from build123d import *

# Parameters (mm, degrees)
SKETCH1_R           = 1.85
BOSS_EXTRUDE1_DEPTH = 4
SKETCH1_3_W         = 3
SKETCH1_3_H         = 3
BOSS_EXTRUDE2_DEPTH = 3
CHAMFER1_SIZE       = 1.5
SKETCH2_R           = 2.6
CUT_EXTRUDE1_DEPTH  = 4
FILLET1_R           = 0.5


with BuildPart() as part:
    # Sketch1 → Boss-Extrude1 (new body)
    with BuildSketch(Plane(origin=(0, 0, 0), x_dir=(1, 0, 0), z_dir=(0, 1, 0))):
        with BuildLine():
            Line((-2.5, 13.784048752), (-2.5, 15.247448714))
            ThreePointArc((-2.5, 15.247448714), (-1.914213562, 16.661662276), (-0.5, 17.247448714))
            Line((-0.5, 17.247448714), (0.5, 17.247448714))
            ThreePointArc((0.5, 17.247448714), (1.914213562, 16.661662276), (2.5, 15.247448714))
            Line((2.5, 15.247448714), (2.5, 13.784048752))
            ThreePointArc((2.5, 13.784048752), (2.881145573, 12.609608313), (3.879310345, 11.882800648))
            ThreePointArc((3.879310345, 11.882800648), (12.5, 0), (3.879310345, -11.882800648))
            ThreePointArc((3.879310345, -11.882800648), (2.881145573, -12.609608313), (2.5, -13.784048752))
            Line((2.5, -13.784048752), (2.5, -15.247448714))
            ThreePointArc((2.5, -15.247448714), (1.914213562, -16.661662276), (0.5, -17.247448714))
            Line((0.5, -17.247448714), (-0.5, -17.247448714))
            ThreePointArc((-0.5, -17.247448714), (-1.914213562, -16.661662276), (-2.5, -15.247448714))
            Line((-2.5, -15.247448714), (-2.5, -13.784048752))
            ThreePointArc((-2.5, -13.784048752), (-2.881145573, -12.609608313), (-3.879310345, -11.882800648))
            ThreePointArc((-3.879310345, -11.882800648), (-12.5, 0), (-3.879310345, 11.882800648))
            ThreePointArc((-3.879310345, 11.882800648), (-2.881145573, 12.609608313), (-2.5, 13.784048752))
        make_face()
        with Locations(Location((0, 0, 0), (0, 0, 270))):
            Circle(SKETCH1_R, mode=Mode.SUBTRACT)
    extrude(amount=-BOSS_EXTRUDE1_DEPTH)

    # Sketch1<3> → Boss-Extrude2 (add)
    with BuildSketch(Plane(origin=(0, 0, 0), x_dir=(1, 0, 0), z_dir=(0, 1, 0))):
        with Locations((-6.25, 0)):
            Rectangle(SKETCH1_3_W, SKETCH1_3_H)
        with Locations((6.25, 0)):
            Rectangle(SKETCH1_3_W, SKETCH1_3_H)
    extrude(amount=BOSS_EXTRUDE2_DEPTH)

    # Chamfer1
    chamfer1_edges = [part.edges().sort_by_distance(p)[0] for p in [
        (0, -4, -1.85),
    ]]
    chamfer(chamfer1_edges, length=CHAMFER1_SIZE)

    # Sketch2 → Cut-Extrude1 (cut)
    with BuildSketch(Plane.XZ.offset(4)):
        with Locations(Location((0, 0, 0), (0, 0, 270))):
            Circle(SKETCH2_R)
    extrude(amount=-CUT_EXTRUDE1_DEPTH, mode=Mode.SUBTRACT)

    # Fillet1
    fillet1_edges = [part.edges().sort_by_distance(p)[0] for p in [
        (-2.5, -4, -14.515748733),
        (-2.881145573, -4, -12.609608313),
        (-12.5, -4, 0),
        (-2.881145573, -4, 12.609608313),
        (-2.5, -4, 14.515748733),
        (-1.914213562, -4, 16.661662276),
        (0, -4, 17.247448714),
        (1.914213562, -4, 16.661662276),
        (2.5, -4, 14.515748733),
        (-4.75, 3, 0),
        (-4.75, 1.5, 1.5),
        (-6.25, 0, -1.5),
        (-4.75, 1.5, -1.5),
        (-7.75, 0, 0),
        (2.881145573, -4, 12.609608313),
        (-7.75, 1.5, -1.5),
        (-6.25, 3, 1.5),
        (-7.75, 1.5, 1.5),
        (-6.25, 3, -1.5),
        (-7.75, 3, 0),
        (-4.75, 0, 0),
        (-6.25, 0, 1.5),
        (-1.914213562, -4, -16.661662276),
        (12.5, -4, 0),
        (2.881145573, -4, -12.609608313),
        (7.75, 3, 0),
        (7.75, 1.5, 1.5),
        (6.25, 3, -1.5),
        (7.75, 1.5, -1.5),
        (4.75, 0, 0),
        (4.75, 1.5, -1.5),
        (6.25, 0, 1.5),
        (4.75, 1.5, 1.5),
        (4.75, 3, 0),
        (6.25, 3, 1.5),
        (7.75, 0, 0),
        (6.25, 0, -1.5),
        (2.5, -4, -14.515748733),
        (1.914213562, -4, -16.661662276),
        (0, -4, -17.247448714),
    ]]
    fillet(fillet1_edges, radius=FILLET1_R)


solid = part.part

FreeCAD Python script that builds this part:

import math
import FreeCAD as App
import Part
import Sketcher
Q = App.Units.Quantity


def edges_at(feature, points):
    """Names of the edges that pass closest to the given points."""
    edges = feature.Shape.Edges
    near = lambda p: min(range(len(edges)), key=lambda i: edges[i].distToShape(Part.Vertex(*p))[0])
    return sorted({f"Edge{near(p) + 1}" for p in points})


def add_polygon(sketch, points):
    """Adds a closed chain of lines whose ends are joined by coincident constraints."""
    first, n = sketch.GeometryCount, len(points)
    for a, b in zip(points, points[1:] + points[:1]):
        sketch.addGeometry(Part.LineSegment(App.Vector(*a, 0), App.Vector(*b, 0)), False)
    for i in range(n):
        sketch.addConstraint(Sketcher.Constraint("Coincident", first + i, 2, first + (i + 1) % n, 1))

doc = App.newDocument("Part")
body = doc.addObject("PartDesign::Body", "Body")

sketch1 = body.newObject("Sketcher::SketchObject", "Sketch")
sketch1.AttachmentSupport = (doc.getObject("XZ_Plane"), [""])
sketch1.MapMode = "FlatFace"
sketch1.addGeometry([
    Part.LineSegment(App.Vector(-2.5, -15.2, 0), App.Vector(-2.5, -13.8, 0)),
    Part.ArcOfCircle(Part.Circle(App.Vector(-4.5, -13.8, 0), App.Vector(0, 0, 1), 2), math.radians(0), math.radians(72)),
    Part.ArcOfCircle(Part.Circle(App.Vector(0, 0, 0), App.Vector(0, 0, 1), 12.5), math.radians(108), math.radians(252)),
    Part.ArcOfCircle(Part.Circle(App.Vector(-4.5, 13.8, 0), App.Vector(0, 0, 1), 2), math.radians(-72), math.radians(0)),
    Part.LineSegment(App.Vector(-2.5, 13.8, 0), App.Vector(-2.5, 15.2, 0)),
    Part.ArcOfCircle(Part.Circle(App.Vector(-0.5, 15.2, 0), App.Vector(0, 0, 1), 2), math.radians(90), math.radians(180)),
    Part.LineSegment(App.Vector(-0.5, 17.2, 0), App.Vector(0.5, 17.2, 0)),
    Part.ArcOfCircle(Part.Circle(App.Vector(0.5, 15.2, 0), App.Vector(0, 0, 1), 2), math.radians(0), math.radians(90)),
    Part.LineSegment(App.Vector(2.5, 15.2, 0), App.Vector(2.5, 13.8, 0)),
    Part.ArcOfCircle(Part.Circle(App.Vector(4.5, 13.8, 0), App.Vector(0, 0, 1), 2), math.radians(180), math.radians(252)),
    Part.ArcOfCircle(Part.Circle(App.Vector(0, 0, 0), App.Vector(0, 0, 1), 12.5), math.radians(-72), math.radians(72)),
    Part.ArcOfCircle(Part.Circle(App.Vector(4.5, -13.8, 0), App.Vector(0, 0, 1), 2), math.radians(108), math.radians(180)),
    Part.LineSegment(App.Vector(2.5, -13.8, 0), App.Vector(2.5, -15.2, 0)),
    Part.ArcOfCircle(Part.Circle(App.Vector(0.5, -15.2, 0), App.Vector(0, 0, 1), 2), math.radians(-90), math.radians(0)),
    Part.LineSegment(App.Vector(0.5, -17.2, 0), App.Vector(-0.5, -17.2, 0)),
    Part.ArcOfCircle(Part.Circle(App.Vector(-0.5, -15.2, 0), App.Vector(0, 0, 1), 2), math.radians(-180), math.radians(-90)),
    Part.Circle(App.Vector(0, 0, 0), App.Vector(0, 0, 1), 1.9),
], False)
sketch1.addConstraint([
    Sketcher.Constraint("Tangent", 0, 2, 1, 1),
    Sketcher.Constraint("Tangent", 1, 2, 2, 2),
    Sketcher.Constraint("Tangent", 2, 1, 3, 1),
    Sketcher.Constraint("Tangent", 3, 2, 4, 1),
    Sketcher.Constraint("Tangent", 4, 2, 5, 2),
    Sketcher.Constraint("Tangent", 5, 1, 6, 1),
    Sketcher.Constraint("Tangent", 6, 2, 7, 2),
    Sketcher.Constraint("Tangent", 7, 1, 8, 1),
    Sketcher.Constraint("Tangent", 8, 2, 9, 1),
    Sketcher.Constraint("Tangent", 9, 2, 10, 2),
    Sketcher.Constraint("Tangent", 10, 1, 11, 1),
    Sketcher.Constraint("Tangent", 11, 2, 12, 1),
    Sketcher.Constraint("Tangent", 12, 2, 13, 2),
    Sketcher.Constraint("Tangent", 13, 1, 14, 1),
    Sketcher.Constraint("Tangent", 14, 2, 15, 2),
    Sketcher.Constraint("Tangent", 15, 1, 0, 1),
    Sketcher.Constraint("Vertical", 0),
    Sketcher.Constraint("Vertical", 4),
    Sketcher.Constraint("Horizontal", 6),
    Sketcher.Constraint("Vertical", 8),
    Sketcher.Constraint("Vertical", 12),
    Sketcher.Constraint("Horizontal", 14),
    Sketcher.Constraint("Coincident", 2, 3, -1, 1),
    Sketcher.Constraint("Coincident", 10, 3, -1, 1),
    Sketcher.Constraint("Coincident", 16, 3, -1, 1),
    Sketcher.Constraint("Equal", 1, 3),
    Sketcher.Constraint("Equal", 3, 5),
    Sketcher.Constraint("Equal", 5, 7),
    Sketcher.Constraint("Equal", 7, 9),
    Sketcher.Constraint("Equal", 2, 10),
    Sketcher.Constraint("Equal", 9, 11),
    Sketcher.Constraint("Equal", 11, 13),
    Sketcher.Constraint("Equal", 13, 15),
    Sketcher.Constraint("Symmetric", 5, 3, 13, 3, -1, 1),
    Sketcher.Constraint("Horizontal", 3, 3, 9, 3),
    Sketcher.Constraint("Horizontal", 1, 3, 11, 3),
    Sketcher.Constraint("Radius", 1, Q("2 mm")),
    Sketcher.Constraint("Diameter", 16, Q("3.7 mm")),
    Sketcher.Constraint("Radius", 2, Q("12.5 mm")),
    Sketcher.Constraint("DistanceX", 6, 1, 6, 2, Q("1 mm")),
    Sketcher.Constraint("DistanceY", 0, 1, 0, 2, Q("1.4634 mm")),
])
pad1 = body.newObject("PartDesign::Pad", "Pad")
pad1.Profile = sketch1
pad1.Length = 4

sketch2 = body.newObject("Sketcher::SketchObject", "Sketch001")
sketch2.AttachmentSupport = (doc.getObject("XZ_Plane"), [""])
sketch2.MapMode = "FlatFace"
add_polygon(sketch2, [(-7.8, -1.5), (-7.8, 1.5), (-4.8, 1.5), (-4.8, -1.5)])
add_polygon(sketch2, [(4.8, -1.5), (4.8, 1.5), (7.8, 1.5), (7.8, -1.5)])
sketch2.addConstraint([
    Sketcher.Constraint("Vertical", 0),
    Sketcher.Constraint("Horizontal", 1),
    Sketcher.Constraint("Vertical", 2),
    Sketcher.Constraint("Horizontal", 3),
    Sketcher.Constraint("Vertical", 4),
    Sketcher.Constraint("Horizontal", 5),
    Sketcher.Constraint("Vertical", 6),
    Sketcher.Constraint("Horizontal", 7),
    Sketcher.Constraint("Symmetric", 2, 2, 4, 2, -1, 1),
    Sketcher.Constraint("Symmetric", 0, 2, 6, 2, -1, 1),
    Sketcher.Constraint("Horizontal", 1, 2, 4, 2),
    Sketcher.Constraint("Equal", 7, 0),
    Sketcher.Constraint("DistanceX", 1, 1, 1, 2, Q("3 mm")),
    Sketcher.Constraint("DistanceX", 1, 2, 4, 2, Q("9.5 mm")),
])
pad2 = body.newObject("PartDesign::Pad", "Pad001")
pad2.Profile = sketch2
pad2.Length = 3
pad2.Reversed = True
doc.recompute()

chamfer = body.newObject("PartDesign::Chamfer", "Chamfer")
chamfer.Base = (pad2, edges_at(pad2, [(0, -4, -1.85)]))
chamfer.Size = 1.5

sketch3 = body.newObject("Sketcher::SketchObject", "Sketch002")
sketch3.AttachmentSupport = (doc.getObject("XZ_Plane"), [""])
sketch3.MapMode = "FlatFace"
sketch3.AttachmentOffset = App.Placement(App.Vector(0, 0, 4), App.Rotation())
sketch3.addGeometry(Part.Circle(App.Vector(0, 0, 0), App.Vector(0, 0, 1), 2.6), False)
sketch3.addConstraint([
    Sketcher.Constraint("Coincident", 0, 3, -1, 1),
    Sketcher.Constraint("Diameter", 0, Q("5.2 mm")),
])
pocket1 = body.newObject("PartDesign::Pocket", "Pocket")
pocket1.Profile = sketch3
pocket1.Length = 4
doc.recompute()

fillet = body.newObject("PartDesign::Fillet", "Fillet")
fillet.Base = (pocket1, edges_at(pocket1, [
    (-2.5, -4, -14.516),
    (-2.881, -4, -12.61),
    (-12.5, -4, 0),
    (-2.881, -4, 12.61),
    (-2.5, -4, 14.516),
    (-1.914, -4, 16.662),
    (0, -4, 17.247),
    (1.914, -4, 16.662),
    (2.5, -4, 14.516),
    (-4.75, 3, 0),
    (-4.75, 1.5, 1.5),
    (-6.25, 0, -1.5),
    (-4.75, 1.5, -1.5),
    (-7.75, 0, 0),
    (2.881, -4, 12.61),
    (-7.75, 1.5, -1.5),
    (-6.25, 3, 1.5),
    (-7.75, 1.5, 1.5),
    (-6.25, 3, -1.5),
    (-7.75, 3, 0),
    (-4.75, 0, 0),
    (-6.25, 0, 1.5),
    (-1.914, -4, -16.662),
    (12.5, -4, 0),
    (2.881, -4, -12.61),
    (7.75, 3, 0),
    (7.75, 1.5, 1.5),
    (6.25, 3, -1.5),
    (7.75, 1.5, -1.5),
    (4.75, 0, 0),
    (4.75, 1.5, -1.5),
    (6.25, 0, 1.5),
    (4.75, 1.5, 1.5),
    (4.75, 3, 0),
    (6.25, 3, 1.5),
    (7.75, 0, 0),
    (6.25, 0, -1.5),
    (2.5, -4, -14.516),
    (1.914, -4, -16.662),
    (0, -4, -17.247),
]))
fillet.Radius = 0.5

doc.recompute()
